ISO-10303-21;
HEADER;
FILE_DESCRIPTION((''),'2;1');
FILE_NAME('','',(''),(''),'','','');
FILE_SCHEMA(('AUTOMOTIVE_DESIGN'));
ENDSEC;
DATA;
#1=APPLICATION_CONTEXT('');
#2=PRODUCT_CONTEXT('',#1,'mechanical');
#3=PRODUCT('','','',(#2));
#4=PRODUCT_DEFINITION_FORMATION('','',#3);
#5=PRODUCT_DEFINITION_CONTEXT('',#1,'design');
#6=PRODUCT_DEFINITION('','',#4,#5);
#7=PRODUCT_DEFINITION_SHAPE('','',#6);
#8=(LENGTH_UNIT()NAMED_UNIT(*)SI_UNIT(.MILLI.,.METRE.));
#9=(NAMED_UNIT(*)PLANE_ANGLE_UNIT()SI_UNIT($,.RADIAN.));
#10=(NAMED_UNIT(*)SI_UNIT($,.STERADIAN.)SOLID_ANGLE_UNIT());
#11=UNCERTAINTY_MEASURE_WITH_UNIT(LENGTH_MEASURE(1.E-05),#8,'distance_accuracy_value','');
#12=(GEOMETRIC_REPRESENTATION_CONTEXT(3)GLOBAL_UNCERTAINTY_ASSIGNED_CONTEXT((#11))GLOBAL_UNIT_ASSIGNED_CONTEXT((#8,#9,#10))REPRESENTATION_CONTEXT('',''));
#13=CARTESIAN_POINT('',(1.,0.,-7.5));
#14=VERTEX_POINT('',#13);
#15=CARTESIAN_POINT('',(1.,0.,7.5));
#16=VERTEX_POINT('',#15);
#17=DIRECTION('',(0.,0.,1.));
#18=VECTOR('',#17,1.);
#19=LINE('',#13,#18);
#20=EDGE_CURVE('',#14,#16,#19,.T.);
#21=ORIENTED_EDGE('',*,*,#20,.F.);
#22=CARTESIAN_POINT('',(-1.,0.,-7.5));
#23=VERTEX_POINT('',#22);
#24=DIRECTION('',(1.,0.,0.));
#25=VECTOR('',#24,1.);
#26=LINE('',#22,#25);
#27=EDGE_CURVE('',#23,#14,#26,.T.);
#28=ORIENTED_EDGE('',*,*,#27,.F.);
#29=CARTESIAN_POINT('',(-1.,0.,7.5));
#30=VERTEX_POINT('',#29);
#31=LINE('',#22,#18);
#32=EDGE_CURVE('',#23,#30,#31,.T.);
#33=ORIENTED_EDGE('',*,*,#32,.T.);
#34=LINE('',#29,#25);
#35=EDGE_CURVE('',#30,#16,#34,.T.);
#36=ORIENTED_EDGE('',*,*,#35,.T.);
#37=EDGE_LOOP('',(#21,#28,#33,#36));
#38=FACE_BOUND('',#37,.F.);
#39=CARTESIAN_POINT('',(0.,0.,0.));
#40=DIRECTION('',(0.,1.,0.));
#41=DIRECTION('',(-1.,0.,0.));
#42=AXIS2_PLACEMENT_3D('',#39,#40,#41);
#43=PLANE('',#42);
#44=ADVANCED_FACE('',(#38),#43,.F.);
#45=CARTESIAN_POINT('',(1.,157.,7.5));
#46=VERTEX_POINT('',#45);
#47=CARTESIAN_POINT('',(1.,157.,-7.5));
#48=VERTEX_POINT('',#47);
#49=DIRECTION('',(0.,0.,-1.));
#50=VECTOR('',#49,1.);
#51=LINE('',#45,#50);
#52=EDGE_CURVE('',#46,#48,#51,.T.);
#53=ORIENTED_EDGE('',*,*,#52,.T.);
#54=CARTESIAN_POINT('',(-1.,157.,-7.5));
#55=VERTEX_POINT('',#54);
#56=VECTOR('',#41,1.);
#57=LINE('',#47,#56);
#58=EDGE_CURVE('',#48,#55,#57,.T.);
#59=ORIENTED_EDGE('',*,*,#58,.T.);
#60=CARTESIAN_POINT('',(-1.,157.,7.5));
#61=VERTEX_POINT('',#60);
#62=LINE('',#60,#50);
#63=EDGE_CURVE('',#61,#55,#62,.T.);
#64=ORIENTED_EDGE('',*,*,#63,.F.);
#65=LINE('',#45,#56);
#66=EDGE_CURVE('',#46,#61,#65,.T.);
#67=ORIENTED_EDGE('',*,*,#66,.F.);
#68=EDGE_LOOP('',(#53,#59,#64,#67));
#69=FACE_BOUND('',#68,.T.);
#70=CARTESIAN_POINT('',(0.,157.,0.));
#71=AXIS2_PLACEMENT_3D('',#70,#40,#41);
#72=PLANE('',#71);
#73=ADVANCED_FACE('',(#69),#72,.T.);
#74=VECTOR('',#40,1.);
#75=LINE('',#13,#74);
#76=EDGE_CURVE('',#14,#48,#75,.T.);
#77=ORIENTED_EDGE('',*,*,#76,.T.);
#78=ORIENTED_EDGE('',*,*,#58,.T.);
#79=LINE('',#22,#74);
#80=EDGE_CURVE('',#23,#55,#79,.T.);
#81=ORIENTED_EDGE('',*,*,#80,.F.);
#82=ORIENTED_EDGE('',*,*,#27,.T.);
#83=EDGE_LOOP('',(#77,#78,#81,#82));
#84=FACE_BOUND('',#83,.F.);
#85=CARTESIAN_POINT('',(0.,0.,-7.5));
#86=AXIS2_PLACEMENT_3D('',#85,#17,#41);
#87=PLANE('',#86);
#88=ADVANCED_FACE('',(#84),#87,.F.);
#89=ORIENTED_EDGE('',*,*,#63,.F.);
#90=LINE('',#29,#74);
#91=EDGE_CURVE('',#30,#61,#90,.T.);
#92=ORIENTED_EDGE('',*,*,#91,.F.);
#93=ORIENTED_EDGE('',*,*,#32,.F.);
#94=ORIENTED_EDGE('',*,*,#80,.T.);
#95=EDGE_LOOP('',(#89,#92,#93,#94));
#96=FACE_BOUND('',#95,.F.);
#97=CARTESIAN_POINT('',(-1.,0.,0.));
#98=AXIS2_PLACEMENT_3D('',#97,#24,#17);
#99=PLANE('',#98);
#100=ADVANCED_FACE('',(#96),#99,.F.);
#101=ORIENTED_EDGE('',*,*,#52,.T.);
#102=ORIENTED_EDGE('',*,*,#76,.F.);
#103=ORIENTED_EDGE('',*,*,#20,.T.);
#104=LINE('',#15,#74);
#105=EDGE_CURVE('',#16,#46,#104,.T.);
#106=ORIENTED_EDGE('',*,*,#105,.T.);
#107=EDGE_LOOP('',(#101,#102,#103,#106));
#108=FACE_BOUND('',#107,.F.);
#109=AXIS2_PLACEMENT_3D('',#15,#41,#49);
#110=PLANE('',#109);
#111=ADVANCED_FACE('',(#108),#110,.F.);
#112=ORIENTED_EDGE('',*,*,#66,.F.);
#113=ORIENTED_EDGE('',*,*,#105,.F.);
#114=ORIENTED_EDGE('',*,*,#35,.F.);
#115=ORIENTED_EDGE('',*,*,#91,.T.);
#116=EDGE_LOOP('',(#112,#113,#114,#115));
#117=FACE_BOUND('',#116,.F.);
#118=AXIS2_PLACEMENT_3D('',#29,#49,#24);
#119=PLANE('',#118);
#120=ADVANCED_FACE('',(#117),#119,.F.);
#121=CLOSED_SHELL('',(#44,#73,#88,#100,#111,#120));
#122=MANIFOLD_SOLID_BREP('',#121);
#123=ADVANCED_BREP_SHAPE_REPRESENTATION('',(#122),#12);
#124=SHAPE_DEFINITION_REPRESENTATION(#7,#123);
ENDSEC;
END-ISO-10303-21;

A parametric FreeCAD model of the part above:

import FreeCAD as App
import Part
import Sketcher
Q = App.Units.Quantity


def add_polygon(sketch, points):
    """Adds a closed chain of lines whose ends are joined by coincident constraints."""
    first, n = sketch.GeometryCount, len(points)
    for a, b in zip(points, points[1:] + points[:1]):
        sketch.addGeometry(Part.LineSegment(App.Vector(*a, 0), App.Vector(*b, 0)), False)
    for i in range(n):
        sketch.addConstraint(Sketcher.Constraint("Coincident", first + i, 2, first + (i + 1) % n, 1))

doc = App.newDocument("Part")
body = doc.addObject("PartDesign::Body", "Body")

sketch1 = body.newObject("Sketcher::SketchObject", "Sketch")
sketch1.AttachmentSupport = (doc.getObject("XZ_Plane"), [""])
sketch1.MapMode = "FlatFace"
add_polygon(sketch1, [(-1, 7.5), (1, 7.5), (1, -7.5), (-1, -7.5)])
sketch1.addConstraint([
    Sketcher.Constraint("Horizontal", 0),
    Sketcher.Constraint("Vertical", 1),
    Sketcher.Constraint("Horizontal", 2),
    Sketcher.Constraint("Vertical", 3),
    Sketcher.Constraint("Symmetric", 0, 2, 2, 2, -1, 1),
    Sketcher.Constraint("DistanceX", 0, 1, 0, 2, Q("2 mm")),
    Sketcher.Constraint("DistanceY", 1, 2, 1, 1, Q("15 mm")),
])
pad1 = body.newObject("PartDesign::Pad", "Pad")
pad1.Profile = sketch1
pad1.Length = 157
pad1.Reversed = True

doc.recompute()
